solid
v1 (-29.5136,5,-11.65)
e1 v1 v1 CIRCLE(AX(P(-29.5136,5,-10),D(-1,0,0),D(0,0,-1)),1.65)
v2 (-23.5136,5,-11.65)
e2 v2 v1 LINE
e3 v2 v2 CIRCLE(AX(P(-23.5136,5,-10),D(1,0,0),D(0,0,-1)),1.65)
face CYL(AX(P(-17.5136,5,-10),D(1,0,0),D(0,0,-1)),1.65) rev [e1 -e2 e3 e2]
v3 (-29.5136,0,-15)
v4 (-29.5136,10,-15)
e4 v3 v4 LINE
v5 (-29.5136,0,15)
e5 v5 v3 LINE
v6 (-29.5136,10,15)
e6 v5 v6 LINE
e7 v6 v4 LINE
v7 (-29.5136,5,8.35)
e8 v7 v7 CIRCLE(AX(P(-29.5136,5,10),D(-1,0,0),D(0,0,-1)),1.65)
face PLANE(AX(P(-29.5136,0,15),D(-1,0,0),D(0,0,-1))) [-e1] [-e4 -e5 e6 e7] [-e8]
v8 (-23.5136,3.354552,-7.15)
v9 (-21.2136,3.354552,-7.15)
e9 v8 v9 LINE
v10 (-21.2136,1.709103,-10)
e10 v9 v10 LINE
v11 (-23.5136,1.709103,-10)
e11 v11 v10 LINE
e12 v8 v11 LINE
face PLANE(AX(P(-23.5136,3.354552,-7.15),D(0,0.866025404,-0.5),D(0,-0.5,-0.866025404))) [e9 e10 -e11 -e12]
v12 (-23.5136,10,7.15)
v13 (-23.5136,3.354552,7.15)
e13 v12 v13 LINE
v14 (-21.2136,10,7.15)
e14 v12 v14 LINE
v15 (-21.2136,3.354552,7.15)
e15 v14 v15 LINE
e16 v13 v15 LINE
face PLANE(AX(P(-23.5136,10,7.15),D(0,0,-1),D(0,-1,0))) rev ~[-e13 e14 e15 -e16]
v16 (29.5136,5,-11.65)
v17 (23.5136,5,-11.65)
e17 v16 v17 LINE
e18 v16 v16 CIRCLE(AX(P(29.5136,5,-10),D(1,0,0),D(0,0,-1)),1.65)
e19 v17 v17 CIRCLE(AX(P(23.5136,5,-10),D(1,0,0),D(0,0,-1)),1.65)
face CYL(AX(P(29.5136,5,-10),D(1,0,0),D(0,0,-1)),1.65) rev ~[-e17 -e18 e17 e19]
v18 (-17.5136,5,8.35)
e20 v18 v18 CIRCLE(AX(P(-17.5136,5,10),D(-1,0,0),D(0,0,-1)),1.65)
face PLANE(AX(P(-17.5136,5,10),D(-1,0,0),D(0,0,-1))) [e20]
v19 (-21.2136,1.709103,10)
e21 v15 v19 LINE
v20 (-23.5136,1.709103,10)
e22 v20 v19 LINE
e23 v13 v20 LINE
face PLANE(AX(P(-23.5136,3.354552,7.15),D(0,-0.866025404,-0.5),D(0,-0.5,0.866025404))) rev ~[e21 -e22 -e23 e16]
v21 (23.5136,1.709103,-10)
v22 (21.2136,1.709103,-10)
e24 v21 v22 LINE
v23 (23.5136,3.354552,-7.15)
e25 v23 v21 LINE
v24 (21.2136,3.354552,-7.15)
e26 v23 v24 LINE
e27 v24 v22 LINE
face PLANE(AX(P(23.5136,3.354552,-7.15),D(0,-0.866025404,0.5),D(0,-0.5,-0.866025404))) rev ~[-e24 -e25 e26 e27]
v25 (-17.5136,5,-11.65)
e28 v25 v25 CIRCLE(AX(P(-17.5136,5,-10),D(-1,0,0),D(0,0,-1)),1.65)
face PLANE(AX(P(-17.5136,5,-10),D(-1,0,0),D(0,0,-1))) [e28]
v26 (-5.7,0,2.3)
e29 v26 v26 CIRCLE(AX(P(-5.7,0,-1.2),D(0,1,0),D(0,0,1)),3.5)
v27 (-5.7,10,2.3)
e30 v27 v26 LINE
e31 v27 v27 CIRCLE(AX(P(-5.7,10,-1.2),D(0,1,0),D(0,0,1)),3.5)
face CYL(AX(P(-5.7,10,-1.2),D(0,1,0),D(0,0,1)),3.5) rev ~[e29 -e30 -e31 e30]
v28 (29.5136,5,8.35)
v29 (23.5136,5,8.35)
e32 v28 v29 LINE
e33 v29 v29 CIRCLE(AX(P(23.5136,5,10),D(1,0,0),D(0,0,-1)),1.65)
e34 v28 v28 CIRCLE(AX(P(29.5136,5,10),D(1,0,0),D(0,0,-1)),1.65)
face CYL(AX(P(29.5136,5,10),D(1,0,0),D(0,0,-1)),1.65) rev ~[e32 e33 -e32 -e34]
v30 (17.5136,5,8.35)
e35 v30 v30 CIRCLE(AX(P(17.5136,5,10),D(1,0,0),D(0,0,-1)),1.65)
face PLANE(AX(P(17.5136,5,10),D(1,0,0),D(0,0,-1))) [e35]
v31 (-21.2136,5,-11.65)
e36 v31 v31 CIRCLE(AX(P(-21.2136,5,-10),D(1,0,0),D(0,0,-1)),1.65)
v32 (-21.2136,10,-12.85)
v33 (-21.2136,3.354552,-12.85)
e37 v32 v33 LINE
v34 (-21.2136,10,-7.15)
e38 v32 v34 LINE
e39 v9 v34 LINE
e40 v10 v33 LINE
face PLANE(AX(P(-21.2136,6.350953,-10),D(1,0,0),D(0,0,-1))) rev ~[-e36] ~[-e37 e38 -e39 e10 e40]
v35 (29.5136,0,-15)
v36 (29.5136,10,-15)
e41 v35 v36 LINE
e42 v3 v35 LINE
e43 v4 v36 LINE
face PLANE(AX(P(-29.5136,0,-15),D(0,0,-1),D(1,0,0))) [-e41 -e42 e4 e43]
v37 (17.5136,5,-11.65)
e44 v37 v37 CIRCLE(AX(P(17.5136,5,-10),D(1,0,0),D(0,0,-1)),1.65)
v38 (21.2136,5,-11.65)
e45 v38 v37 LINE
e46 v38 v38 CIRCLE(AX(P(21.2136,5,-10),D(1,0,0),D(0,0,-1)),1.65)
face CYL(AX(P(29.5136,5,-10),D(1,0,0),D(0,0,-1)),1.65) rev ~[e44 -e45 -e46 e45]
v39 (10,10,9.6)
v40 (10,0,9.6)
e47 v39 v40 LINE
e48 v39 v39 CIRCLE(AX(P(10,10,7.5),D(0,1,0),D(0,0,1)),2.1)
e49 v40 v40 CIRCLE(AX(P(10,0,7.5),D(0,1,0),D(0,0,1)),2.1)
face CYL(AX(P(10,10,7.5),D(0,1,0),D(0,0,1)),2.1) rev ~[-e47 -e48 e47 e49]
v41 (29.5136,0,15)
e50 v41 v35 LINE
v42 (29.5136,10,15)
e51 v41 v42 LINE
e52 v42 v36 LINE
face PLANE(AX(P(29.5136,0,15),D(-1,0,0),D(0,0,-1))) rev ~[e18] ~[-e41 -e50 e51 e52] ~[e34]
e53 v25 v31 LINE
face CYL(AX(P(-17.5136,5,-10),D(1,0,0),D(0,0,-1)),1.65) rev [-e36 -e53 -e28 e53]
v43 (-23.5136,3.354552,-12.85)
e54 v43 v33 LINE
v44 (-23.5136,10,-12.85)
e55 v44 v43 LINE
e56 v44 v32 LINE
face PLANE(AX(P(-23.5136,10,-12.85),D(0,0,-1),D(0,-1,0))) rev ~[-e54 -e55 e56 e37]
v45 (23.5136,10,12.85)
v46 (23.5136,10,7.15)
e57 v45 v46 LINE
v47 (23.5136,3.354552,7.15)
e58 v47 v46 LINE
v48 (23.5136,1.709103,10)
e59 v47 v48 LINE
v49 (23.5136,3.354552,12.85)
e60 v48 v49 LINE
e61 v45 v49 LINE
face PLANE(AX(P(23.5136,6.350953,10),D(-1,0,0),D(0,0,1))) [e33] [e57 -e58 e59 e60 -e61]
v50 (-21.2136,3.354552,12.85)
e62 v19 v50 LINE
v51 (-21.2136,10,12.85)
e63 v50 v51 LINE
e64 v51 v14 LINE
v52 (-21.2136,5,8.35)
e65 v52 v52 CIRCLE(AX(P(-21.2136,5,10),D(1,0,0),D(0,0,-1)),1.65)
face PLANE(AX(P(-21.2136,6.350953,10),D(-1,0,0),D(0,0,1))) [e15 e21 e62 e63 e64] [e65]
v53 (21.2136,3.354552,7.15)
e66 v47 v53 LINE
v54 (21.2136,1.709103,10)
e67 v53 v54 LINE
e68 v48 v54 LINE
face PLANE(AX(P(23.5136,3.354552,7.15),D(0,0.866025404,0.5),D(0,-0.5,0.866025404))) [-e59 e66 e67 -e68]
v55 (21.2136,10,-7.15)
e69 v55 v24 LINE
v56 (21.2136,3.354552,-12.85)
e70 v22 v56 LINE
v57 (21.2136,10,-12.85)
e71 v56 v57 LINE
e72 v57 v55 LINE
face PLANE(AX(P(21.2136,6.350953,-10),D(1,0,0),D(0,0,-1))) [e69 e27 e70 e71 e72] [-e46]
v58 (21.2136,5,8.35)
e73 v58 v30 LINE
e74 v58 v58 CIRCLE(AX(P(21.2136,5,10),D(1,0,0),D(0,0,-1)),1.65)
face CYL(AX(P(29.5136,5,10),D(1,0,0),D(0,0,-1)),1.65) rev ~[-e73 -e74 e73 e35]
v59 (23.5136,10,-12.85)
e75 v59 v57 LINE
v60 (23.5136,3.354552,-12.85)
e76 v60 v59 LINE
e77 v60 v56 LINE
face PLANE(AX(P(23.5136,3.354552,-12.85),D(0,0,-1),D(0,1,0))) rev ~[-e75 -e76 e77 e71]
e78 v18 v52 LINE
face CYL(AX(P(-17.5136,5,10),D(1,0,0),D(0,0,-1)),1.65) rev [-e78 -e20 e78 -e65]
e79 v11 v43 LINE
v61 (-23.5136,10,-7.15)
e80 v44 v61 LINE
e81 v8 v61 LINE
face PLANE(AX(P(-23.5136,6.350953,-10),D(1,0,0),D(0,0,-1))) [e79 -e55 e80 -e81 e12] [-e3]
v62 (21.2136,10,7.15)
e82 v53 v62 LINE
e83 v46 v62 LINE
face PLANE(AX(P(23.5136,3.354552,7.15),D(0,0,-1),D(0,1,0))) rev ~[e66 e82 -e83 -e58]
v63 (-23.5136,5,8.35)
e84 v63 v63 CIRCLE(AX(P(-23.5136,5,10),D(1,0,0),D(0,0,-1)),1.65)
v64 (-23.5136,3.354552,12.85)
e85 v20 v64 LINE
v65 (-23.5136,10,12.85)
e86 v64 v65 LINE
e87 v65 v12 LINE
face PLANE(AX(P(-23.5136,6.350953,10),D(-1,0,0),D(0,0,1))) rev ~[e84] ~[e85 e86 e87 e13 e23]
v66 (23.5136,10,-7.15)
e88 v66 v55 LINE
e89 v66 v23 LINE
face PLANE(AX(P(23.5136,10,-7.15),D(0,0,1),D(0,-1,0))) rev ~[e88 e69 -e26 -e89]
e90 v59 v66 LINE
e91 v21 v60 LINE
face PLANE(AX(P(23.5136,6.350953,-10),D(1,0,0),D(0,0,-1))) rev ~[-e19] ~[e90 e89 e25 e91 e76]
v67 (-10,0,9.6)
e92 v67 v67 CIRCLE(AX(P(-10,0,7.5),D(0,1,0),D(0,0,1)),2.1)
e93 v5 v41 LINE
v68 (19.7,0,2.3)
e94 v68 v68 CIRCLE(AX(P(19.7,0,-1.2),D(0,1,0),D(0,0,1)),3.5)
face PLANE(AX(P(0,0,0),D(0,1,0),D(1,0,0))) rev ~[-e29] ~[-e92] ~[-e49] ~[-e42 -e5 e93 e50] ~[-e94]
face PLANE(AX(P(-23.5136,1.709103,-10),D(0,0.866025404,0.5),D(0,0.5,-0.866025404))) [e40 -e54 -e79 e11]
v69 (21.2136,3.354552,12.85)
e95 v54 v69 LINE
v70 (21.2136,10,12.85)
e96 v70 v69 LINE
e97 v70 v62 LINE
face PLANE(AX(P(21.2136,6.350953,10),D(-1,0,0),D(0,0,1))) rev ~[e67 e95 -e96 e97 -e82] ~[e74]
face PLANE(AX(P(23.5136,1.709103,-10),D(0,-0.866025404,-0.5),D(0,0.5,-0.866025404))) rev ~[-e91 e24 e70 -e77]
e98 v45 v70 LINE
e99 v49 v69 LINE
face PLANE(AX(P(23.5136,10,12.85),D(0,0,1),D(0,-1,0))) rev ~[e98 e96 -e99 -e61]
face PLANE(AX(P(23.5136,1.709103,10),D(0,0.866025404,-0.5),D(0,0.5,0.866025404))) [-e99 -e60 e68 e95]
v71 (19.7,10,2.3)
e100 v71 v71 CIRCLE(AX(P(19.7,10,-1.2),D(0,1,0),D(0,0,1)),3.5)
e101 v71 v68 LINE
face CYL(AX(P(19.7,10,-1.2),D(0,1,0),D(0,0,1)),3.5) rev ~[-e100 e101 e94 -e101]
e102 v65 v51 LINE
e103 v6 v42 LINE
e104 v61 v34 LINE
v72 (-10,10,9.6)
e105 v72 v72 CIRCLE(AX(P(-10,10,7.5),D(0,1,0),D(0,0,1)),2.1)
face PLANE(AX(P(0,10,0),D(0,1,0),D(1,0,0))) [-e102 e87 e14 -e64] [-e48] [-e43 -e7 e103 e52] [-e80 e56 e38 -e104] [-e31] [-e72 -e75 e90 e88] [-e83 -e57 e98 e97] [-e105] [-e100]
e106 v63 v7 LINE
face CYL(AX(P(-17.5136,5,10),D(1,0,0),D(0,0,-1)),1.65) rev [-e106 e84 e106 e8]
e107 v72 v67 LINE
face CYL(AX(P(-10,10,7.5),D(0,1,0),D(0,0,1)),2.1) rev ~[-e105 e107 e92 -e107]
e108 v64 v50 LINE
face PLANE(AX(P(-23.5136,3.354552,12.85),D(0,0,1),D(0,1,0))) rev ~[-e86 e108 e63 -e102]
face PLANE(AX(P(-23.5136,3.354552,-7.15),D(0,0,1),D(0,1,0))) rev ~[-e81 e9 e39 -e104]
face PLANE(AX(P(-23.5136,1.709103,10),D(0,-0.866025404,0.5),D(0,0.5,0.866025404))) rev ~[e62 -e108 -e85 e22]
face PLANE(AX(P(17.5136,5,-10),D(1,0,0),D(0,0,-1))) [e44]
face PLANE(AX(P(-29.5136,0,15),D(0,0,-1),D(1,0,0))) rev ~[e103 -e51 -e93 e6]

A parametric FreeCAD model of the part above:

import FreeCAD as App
import Part
import Sketcher
from FreeCAD import Vector
Q = App.Units.Quantity

doc = App.newDocument("Part")
body = doc.addObject("PartDesign::Body", "Body")

# Sketch on XZ plane
sketch1 = doc.addObject("Sketcher::SketchObject", "Sketch")
body.addObject(sketch1)
sketch1.AttachmentSupport = (doc.XZ_Plane, [""])
sketch1.MapMode = "FlatFace"
sketch1.addGeometry(Part.LineSegment(Vector(-30, -15, 0), Vector(-30, 15, 0)), False)
sketch1.addGeometry(Part.LineSegment(Vector(-30, 15, 0), Vector(30, 15, 0)), False)
sketch1.addGeometry(Part.LineSegment(Vector(30, 15, 0), Vector(30, -15, 0)), False)
sketch1.addGeometry(Part.LineSegment(Vector(30, -15, 0), Vector(-30, -15, 0)), False)
sketch1.addConstraint(Sketcher.Constraint("Coincident", 0, 2, 1, 1))
sketch1.addConstraint(Sketcher.Constraint("Coincident", 1, 2, 2, 1))
sketch1.addConstraint(Sketcher.Constraint("Coincident", 2, 2, 3, 1))
sketch1.addConstraint(Sketcher.Constraint("Coincident", 3, 2, 0, 1))
sketch1.addConstraint(Sketcher.Constraint("Vertical", 0))
sketch1.addConstraint(Sketcher.Constraint("Horizontal", 1))
sketch1.addConstraint(Sketcher.Constraint("Vertical", 2))
sketch1.addConstraint(Sketcher.Constraint("Horizontal", 3))
sketch1.addConstraint(Sketcher.Constraint("Symmetric", 0, 2, 2, 2, -1, 1))
sketch1.addConstraint(Sketcher.Constraint("DistanceY", 0, 1, 0, 2, Q("30 mm")))
sketch1.addConstraint(Sketcher.Constraint("DistanceX", 1, 1, 1, 2, Q("59.0272 mm")))
pad1 = doc.addObject("PartDesign::Pad", "Pad")
body.addObject(pad1)
pad1.Profile = sketch1
pad1.Length = 10
pad1.Reversed = True

# Sketch on XZ plane
sketch2 = doc.addObject("Sketcher::SketchObject", "Sketch001")
body.addObject(sketch2)
sketch2.AttachmentSupport = (doc.XZ_Plane, [""])
sketch2.MapMode = "FlatFace"
sketch2.AttachmentOffset = App.Placement(Vector(0, 0, -10), App.Rotation())
sketch2.addGeometry(Part.Circle(Vector(-10, 7.5, 0), Vector(0, 0, 1), 2.1), False)
sketch2.addGeometry(Part.Circle(Vector(10, 7.5, 0), Vector(0, 0, 1), 2.1), False)
sketch2.addConstraint(Sketcher.Constraint("Equal", 0, 1))
sketch2.addConstraint(Sketcher.Constraint("Symmetric", 0, 3, 1, 3, -2))
sketch2.addConstraint(Sketcher.Constraint("Diameter", 0, Q("4.2 mm")))
sketch2.addConstraint(Sketcher.Constraint("DistanceX", 0, 3, -1, 1, Q("10 mm")))
sketch2.addConstraint(Sketcher.Constraint("DistanceY", -1, 1, 0, 3, Q("7.5 mm")))
pocket1 = doc.addObject("PartDesign::Pocket", "Pocket")
body.addObject(pocket1)
pocket1.Profile = sketch2
pocket1.Type = "ThroughAll"
pocket1.Reversed = True

# Sketch on YZ plane
sketch3 = doc.addObject("Sketcher::SketchObject", "Sketch002")
body.addObject(sketch3)
sketch3.AttachmentSupport = (doc.YZ_Plane, [""])
sketch3.MapMode = "FlatFace"
sketch3.AttachmentOffset = App.Placement(Vector(0, 0, 29.5136), App.Rotation())
sketch3.addGeometry(Part.Circle(Vector(5, 10, 0), Vector(0, 0, 1), 1.6), False)
sketch3.addGeometry(Part.Circle(Vector(5, -10, 0), Vector(0, 0, 1), 1.6), False)
sketch3.addConstraint(Sketcher.Constraint("Equal", 0, 1))
sketch3.addConstraint(Sketcher.Constraint("Symmetric", 0, 3, 1, 3, -1))
sketch3.addConstraint(Sketcher.Constraint("Diameter", 0, Q("3.3 mm")))
sketch3.addConstraint(Sketcher.Constraint("DistanceX", -1, 1, 0, 3, Q("5 mm")))
sketch3.addConstraint(Sketcher.Constraint("DistanceY", -1, 1, 0, 3, Q("10 mm")))
pocket2 = doc.addObject("PartDesign::Pocket", "Pocket001")
body.addObject(pocket2)
pocket2.Profile = sketch3
pocket2.Length = 12

# Sketch on YZ plane
sketch4 = doc.addObject("Sketcher::SketchObject", "Sketch003")
body.addObject(sketch4)
sketch4.AttachmentSupport = (doc.YZ_Plane, [""])
sketch4.MapMode = "FlatFace"
sketch4.AttachmentOffset = App.Placement(Vector(0, 0, -17.5136), App.Rotation())
sketch4.addGeometry(Part.Circle(Vector(5, -10, 0), Vector(0, 0, 1), 1.6), False)
sketch4.addGeometry(Part.Circle(Vector(5, 10, 0), Vector(0, 0, 1), 1.6), False)
sketch4.addConstraint(Sketcher.Constraint("Equal", 0, 1))
sketch4.addConstraint(Sketcher.Constraint("Symmetric", 0, 3, 1, 3, -1))
sketch4.addConstraint(Sketcher.Constraint("Diameter", 0, Q("3.3 mm")))
sketch4.addConstraint(Sketcher.Constraint("DistanceX", -1, 1, 0, 3, Q("5 mm")))
sketch4.addConstraint(Sketcher.Constraint("DistanceY", 0, 3, -1, 1, Q("10 mm")))
pocket3 = doc.addObject("PartDesign::Pocket", "Pocket002")
body.addObject(pocket3)
pocket3.Profile = sketch4
pocket3.Length = 12

# Sketch on YZ plane
sketch5 = doc.addObject("Sketcher::SketchObject", "Sketch004")
body.addObject(sketch5)
sketch5.AttachmentSupport = (doc.YZ_Plane, [""])
sketch5.MapMode = "FlatFace"
sketch5.AttachmentOffset = App.Placement(Vector(0, 0, 23.5136), App.Rotation())
sketch5.addGeometry(Part.LineSegment(Vector(10, 12.8, 0), Vector(3.4, 12.8, 0)), False)
sketch5.addGeometry(Part.LineSegment(Vector(3.4, 12.8, 0), Vector(1.7, 10, 0)), False)
sketch5.addGeometry(Part.LineSegment(Vector(1.7, 10, 0), Vector(3.4, 7.2, 0)), False)
sketch5.addGeometry(Part.LineSegment(Vector(3.4, 7.2, 0), Vector(10, 7.2, 0)), False)
sketch5.addGeometry(Part.LineSegment(Vector(10, 7.2, 0), Vector(10, 12.8, 0)), False)
sketch5.addGeometry(Part.LineSegment(Vector(3.4, -7.2, 0), Vector(1.7, -10, 0)), False)
sketch5.addGeometry(Part.LineSegment(Vector(1.7, -10, 0), Vector(3.4, -12.8, 0)), False)
sketch5.addGeometry(Part.LineSegment(Vector(3.4, -12.8, 0), Vector(10, -12.8, 0)), False)
sketch5.addGeometry(Part.LineSegment(Vector(10, -12.8, 0), Vector(10, -7.2, 0)), False)
sketch5.addGeometry(Part.LineSegment(Vector(10, -7.2, 0), Vector(3.4, -7.2, 0)), False)
sketch5.addConstraint(Sketcher.Constraint("Coincident", 0, 2, 1, 1))
sketch5.addConstraint(Sketcher.Constraint("Coincident", 1, 2, 2, 1))
sketch5.addConstraint(Sketcher.Constraint("Coincident", 2, 2, 3, 1))
sketch5.addConstraint(Sketcher.Constraint("Coincident", 3, 2, 4, 1))
sketch5.addConstraint(Sketcher.Constraint("Coincident", 4, 2, 0, 1))
sketch5.addConstraint(Sketcher.Constraint("Coincident", 5, 2, 6, 1))
sketch5.addConstraint(Sketcher.Constraint("Coincident", 6, 2, 7, 1))
sketch5.addConstraint(Sketcher.Constraint("Coincident", 7, 2, 8, 1))
sketch5.addConstraint(Sketcher.Constraint("Coincident", 8, 2, 9, 1))
sketch5.addConstraint(Sketcher.Constraint("Coincident", 9, 2, 5, 1))
sketch5.addConstraint(Sketcher.Constraint("Horizontal", 0))
sketch5.addConstraint(Sketcher.Constraint("Horizontal", 3))
sketch5.addConstraint(Sketcher.Constraint("Vertical", 4))
sketch5.addConstraint(Sketcher.Constraint("Horizontal", 7))
sketch5.addConstraint(Sketcher.Constraint("Vertical", 8))
sketch5.addConstraint(Sketcher.Constraint("Horizontal", 9))
sketch5.addConstraint(Sketcher.Constraint("Symmetric", 1, 2, 5, 2, -1))
sketch5.addConstraint(Sketcher.Constraint("Symmetric", 0, 2, 6, 2, -1))
sketch5.addConstraint(Sketcher.Constraint("Symmetric", 3, 2, 8, 2, -1))
sketch5.addConstraint(Sketcher.Constraint("Parallel", 1, 5))
sketch5.addConstraint(Sketcher.Constraint("Parallel", 2, 6))
sketch5.addConstraint(Sketcher.Constraint("Vertical", 0, 2, 2, 2))
sketch5.addConstraint(Sketcher.Constraint("Angle", 1, Q("-120 deg")))
sketch5.addConstraint(Sketcher.Constraint("DistanceY", 4, 1, 4, 2, Q("5.7 mm")))
sketch5.addConstraint(Sketcher.Constraint("DistanceY", -1, 1, 1, 2, Q("10 mm")))
sketch5.addConstraint(Sketcher.Constraint("DistanceX", -1, 1, 3, 2, Q("10 mm")))
sketch5.addConstraint(Sketcher.Constraint("DistanceX", 0, 2, 0, 1, Q("6.645448 mm")))
pocket4 = doc.addObject("PartDesign::Pocket", "Pocket003")
body.addObject(pocket4)
pocket4.Profile = sketch5
pocket4.Length = 2.3

# Sketch on YZ plane
sketch6 = doc.addObject("Sketcher::SketchObject", "Sketch005")
body.addObject(sketch6)
sketch6.AttachmentSupport = (doc.YZ_Plane, [""])
sketch6.MapMode = "FlatFace"
sketch6.AttachmentOffset = App.Placement(Vector(0, 0, -23.5136), App.Rotation())
sketch6.addGeometry(Part.LineSegment(Vector(10, -12.8, 0), Vector(3.4, -12.8, 0)), False)
sketch6.addGeometry(Part.LineSegment(Vector(3.4, -12.8, 0), Vector(1.7, -10, 0)), False)
sketch6.addGeometry(Part.LineSegment(Vector(1.7, -10, 0), Vector(3.4, -7.2, 0)), False)
sketch6.addGeometry(Part.LineSegment(Vector(3.4, -7.2, 0), Vector(10, -7.2, 0)), False)
sketch6.addGeometry(Part.LineSegment(Vector(10, -7.2, 0), Vector(10, -12.8, 0)), False)
sketch6.addGeometry(Part.LineSegment(Vector(3.4, 7.2, 0), Vector(1.7, 10, 0)), False)
sketch6.addGeometry(Part.LineSegment(Vector(1.7, 10, 0), Vector(3.4, 12.8, 0)), False)
sketch6.addGeometry(Part.LineSegment(Vector(3.4, 12.8, 0), Vector(10, 12.8, 0)), False)
sketch6.addGeometry(Part.LineSegment(Vector(10, 12.8, 0), Vector(10, 7.2, 0)), False)
sketch6.addGeometry(Part.LineSegment(Vector(10, 7.2, 0), Vector(3.4, 7.2, 0)), False)
sketch6.addConstraint(Sketcher.Constraint("Coincident", 0, 2, 1, 1))
sketch6.addConstraint(Sketcher.Constraint("Coincident", 1, 2, 2, 1))
sketch6.addConstraint(Sketcher.Constraint("Coincident", 2, 2, 3, 1))
sketch6.addConstraint(Sketcher.Constraint("Coincident", 3, 2, 4, 1))
sketch6.addConstraint(Sketcher.Constraint("Coincident", 4, 2, 0, 1))
sketch6.addConstraint(Sketcher.Constraint("Coincident", 5, 2, 6, 1))
sketch6.addConstraint(Sketcher.Constraint("Coincident", 6, 2, 7, 1))
sketch6.addConstraint(Sketcher.Constraint("Coincident", 7, 2, 8, 1))
sketch6.addConstraint(Sketcher.Constraint("Coincident", 8, 2, 9, 1))
sketch6.addConstraint(Sketcher.Constraint("Coincident", 9, 2, 5, 1))
sketch6.addConstraint(Sketcher.Constraint("Horizontal", 0))
sketch6.addConstraint(Sketcher.Constraint("Horizontal", 3))
sketch6.addConstraint(Sketcher.Constraint("Vertical", 4))
sketch6.addConstraint(Sketcher.Constraint("Horizontal", 7))
sketch6.addConstraint(Sketcher.Constraint("Vertical", 8))
sketch6.addConstraint(Sketcher.Constraint("Horizontal", 9))
sketch6.addConstraint(Sketcher.Constraint("Symmetric", 1, 2, 5, 2, -1))
sketch6.addConstraint(Sketcher.Constraint("Symmetric", 0, 2, 6, 2, -1))
sketch6.addConstraint(Sketcher.Constraint("Symmetric", 3, 2, 8, 2, -1))
sketch6.addConstraint(Sketcher.Constraint("Parallel", 1, 5))
sketch6.addConstraint(Sketcher.Constraint("Parallel", 2, 6))
sketch6.addConstraint(Sketcher.Constraint("Vertical", 0, 2, 2, 2))
sketch6.addConstraint(Sketcher.Constraint("Angle", 1, Q("120 deg")))
sketch6.addConstraint(Sketcher.Constraint("DistanceY", 4, 2, 4, 1, Q("5.7 mm")))
sketch6.addConstraint(Sketcher.Constraint("DistanceY", 1, 2, -1, 1, Q("10 mm")))
sketch6.addConstraint(Sketcher.Constraint("DistanceX", -1, 1, 3, 2, Q("10 mm")))
sketch6.addConstraint(Sketcher.Constraint("DistanceX", 0, 2, 0, 1, Q("6.645448 mm")))
pocket5 = doc.addObject("PartDesign::Pocket", "Pocket004")
body.addObject(pocket5)
pocket5.Profile = sketch6
pocket5.Length = 2.3
pocket5.Reversed = True

# Sketch on XZ plane
sketch7 = doc.addObject("Sketcher::SketchObject", "Sketch006")
body.addObject(sketch7)
sketch7.AttachmentSupport = (doc.XZ_Plane, [""])
sketch7.MapMode = "FlatFace"
sketch7.AttachmentOffset = App.Placement(Vector(0, 0, -10), App.Rotation())
sketch7.addGeometry(Part.Circle(Vector(19.7, -1.2, 0), Vector(0, 0, 1), 3.5), False)
sketch7.addGeometry(Part.Circle(Vector(-5.7, -1.2, 0), Vector(0, 0, 1), 3.5), False)
sketch7.addConstraint(Sketcher.Constraint("Equal", 0, 1))
sketch7.addConstraint(Sketcher.Constraint("Horizontal", 0, 3, 1, 3))
sketch7.addConstraint(Sketcher.Constraint("Diameter", 0, Q("7 mm")))
sketch7.addConstraint(Sketcher.Constraint("DistanceX", -1, 1, 0, 3, Q("19.7 mm")))
sketch7.addConstraint(Sketcher.Constraint("DistanceY", 0, 3, -1, 1, Q("1.2 mm")))
sketch7.addConstraint(Sketcher.Constraint("DistanceX", 1, 3, -1, 1, Q("5.7 mm")))
pocket6 = doc.addObject("PartDesign::Pocket", "Pocket005")
body.addObject(pocket6)
pocket6.Profile = sketch7
pocket6.Type = "ThroughAll"
pocket6.Reversed = True

doc.recompute()
